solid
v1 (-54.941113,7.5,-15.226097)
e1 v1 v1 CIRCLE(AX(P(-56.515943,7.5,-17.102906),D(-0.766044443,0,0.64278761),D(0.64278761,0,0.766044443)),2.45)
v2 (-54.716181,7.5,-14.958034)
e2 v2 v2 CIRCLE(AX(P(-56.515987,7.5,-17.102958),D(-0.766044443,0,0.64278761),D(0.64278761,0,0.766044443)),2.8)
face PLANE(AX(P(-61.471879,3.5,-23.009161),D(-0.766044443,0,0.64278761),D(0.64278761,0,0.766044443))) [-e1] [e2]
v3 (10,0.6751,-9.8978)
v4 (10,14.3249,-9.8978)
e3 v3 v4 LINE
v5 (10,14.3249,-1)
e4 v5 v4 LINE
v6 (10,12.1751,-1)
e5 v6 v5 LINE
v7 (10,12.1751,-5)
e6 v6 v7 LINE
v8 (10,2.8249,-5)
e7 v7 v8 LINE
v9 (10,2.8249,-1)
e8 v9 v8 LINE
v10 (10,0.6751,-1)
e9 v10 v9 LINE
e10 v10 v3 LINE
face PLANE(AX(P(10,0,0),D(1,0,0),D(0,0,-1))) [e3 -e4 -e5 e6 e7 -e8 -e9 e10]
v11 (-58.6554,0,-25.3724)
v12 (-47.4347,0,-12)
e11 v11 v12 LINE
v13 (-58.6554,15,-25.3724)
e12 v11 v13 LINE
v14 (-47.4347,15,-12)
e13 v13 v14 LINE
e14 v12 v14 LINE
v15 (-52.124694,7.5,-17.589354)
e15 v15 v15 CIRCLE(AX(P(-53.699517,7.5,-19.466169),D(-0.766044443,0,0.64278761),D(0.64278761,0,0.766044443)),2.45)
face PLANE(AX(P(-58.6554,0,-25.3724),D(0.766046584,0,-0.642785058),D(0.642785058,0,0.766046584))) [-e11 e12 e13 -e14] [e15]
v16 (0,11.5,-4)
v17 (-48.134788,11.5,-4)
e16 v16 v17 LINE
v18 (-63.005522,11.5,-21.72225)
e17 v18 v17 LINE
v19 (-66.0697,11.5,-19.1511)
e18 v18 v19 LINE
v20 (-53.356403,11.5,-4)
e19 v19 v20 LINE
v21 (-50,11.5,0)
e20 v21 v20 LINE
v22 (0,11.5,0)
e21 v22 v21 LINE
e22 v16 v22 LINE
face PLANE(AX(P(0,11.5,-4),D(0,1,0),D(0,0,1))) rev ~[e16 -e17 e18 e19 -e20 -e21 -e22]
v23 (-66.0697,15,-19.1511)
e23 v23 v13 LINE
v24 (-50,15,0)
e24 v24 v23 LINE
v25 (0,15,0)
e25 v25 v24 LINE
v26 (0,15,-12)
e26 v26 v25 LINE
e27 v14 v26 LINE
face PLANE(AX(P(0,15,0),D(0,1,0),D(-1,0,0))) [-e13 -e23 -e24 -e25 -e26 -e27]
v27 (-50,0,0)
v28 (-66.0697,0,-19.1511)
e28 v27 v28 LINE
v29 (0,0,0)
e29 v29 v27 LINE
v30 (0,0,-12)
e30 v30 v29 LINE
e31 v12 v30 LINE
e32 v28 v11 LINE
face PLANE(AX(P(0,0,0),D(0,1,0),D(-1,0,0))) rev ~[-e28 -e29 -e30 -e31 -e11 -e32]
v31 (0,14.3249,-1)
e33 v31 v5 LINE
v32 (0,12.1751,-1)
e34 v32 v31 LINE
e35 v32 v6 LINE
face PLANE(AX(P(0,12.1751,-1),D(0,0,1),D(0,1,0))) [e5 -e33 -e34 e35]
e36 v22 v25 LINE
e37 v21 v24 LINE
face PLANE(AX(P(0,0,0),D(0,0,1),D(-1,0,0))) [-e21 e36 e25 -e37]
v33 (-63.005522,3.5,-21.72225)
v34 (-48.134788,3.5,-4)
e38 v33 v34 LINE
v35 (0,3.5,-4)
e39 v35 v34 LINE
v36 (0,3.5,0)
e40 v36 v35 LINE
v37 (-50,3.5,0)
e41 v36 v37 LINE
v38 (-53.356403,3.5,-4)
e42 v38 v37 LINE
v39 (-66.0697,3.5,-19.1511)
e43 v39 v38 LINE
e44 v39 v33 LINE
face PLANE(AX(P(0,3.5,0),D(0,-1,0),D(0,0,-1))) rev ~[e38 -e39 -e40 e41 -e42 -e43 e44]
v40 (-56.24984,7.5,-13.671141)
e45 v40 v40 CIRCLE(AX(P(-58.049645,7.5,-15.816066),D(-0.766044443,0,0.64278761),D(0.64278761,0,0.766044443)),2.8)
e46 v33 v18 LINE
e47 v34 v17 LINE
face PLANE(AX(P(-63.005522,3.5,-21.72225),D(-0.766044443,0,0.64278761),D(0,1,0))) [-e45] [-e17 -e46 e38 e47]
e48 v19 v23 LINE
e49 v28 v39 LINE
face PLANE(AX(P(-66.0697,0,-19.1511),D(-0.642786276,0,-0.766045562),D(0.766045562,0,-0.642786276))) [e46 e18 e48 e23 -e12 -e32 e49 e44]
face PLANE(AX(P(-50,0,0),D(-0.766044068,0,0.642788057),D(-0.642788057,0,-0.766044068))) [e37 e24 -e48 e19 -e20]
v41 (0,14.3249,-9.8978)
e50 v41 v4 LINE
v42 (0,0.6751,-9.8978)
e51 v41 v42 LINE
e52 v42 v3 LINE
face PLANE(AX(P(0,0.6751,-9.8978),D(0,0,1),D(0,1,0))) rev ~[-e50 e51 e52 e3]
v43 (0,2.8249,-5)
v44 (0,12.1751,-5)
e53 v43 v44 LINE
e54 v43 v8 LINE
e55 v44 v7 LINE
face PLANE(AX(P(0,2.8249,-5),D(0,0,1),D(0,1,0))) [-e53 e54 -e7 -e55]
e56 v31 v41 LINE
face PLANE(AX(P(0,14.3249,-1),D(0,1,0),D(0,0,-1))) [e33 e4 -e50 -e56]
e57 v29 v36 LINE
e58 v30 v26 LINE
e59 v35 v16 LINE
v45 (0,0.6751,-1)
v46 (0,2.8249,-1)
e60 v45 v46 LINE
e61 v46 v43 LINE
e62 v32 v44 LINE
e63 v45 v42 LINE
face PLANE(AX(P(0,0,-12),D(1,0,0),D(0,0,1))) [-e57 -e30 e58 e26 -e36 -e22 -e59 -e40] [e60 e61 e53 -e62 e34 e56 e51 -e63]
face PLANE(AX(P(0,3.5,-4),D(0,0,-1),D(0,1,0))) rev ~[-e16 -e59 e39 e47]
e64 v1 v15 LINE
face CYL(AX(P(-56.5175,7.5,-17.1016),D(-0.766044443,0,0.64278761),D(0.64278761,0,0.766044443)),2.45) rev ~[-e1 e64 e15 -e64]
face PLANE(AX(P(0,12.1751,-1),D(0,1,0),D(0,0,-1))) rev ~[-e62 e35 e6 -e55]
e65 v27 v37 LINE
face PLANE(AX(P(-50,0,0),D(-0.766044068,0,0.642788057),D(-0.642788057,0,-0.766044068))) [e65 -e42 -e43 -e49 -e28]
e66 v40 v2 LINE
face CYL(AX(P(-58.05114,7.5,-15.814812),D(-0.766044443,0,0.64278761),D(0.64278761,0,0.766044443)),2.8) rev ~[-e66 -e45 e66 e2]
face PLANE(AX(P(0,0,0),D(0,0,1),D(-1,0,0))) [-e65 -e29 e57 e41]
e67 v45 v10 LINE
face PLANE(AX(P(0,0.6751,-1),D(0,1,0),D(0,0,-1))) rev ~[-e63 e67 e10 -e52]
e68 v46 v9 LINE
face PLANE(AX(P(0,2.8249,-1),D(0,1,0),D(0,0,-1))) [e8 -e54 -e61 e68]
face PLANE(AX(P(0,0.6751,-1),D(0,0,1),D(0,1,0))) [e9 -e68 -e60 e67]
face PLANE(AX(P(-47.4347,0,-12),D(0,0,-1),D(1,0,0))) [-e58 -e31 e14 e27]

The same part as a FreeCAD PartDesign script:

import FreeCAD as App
import Part
import Sketcher

V = App.Vector
Q = App.Units.Quantity

doc = App.newDocument("Part")
body = doc.addObject("PartDesign::Body", "Body")

sketch1 = body.newObject("Sketcher::SketchObject", "Sketch")
sketch1.AttachmentSupport = (doc.getObject("XZ_Plane"), [""])
sketch1.MapMode = "FlatFace"
sketch1.addGeometry([
    Part.LineSegment(V(-50, 0, 0), V(0, 0, 0)),
    Part.LineSegment(V(0, 0, 0), V(0, -12, 0)),
    Part.LineSegment(V(0, -12, 0), V(-47, -12, 0)),
    Part.LineSegment(V(-47, -12, 0), V(-59, -25, 0)),
    Part.LineSegment(V(-59, -25, 0), V(-66, -19, 0)),
    Part.LineSegment(V(-66, -19, 0), V(-50, 0, 0)),
], False)
sketch1.addConstraint([
    Sketcher.Constraint("Coincident", 0, 2, 1, 1),
    Sketcher.Constraint("Coincident", 1, 2, 2, 1),
    Sketcher.Constraint("Coincident", 2, 2, 3, 1),
    Sketcher.Constraint("Coincident", 3, 2, 4, 1),
    Sketcher.Constraint("Coincident", 4, 2, 5, 1),
    Sketcher.Constraint("Coincident", 5, 2, 0, 1),
    Sketcher.Constraint("Horizontal", 0),
    Sketcher.Constraint("Vertical", 1),
    Sketcher.Constraint("Horizontal", 2),
    Sketcher.Constraint("Coincident", 0, 2, -1, 1),
    Sketcher.Constraint("Perpendicular", 3, 4),
    Sketcher.Constraint("Perpendicular", 4, 5),
    Sketcher.Constraint("DistanceX", 0, 1, 0, 2, Q("50 mm")),
    Sketcher.Constraint("DistanceY", 1, 2, 1, 1, Q("12 mm")),
    Sketcher.Constraint("Angle", 5, Q("50 deg")),
    Sketcher.Constraint("Distance", 5, Q("25 mm")),
    Sketcher.Constraint("DistanceX", 2, 2, 2, 1, Q("47.4347 mm")),
])
pad1 = body.newObject("PartDesign::Pad", "Pad")
pad1.Profile = sketch1
pad1.Length = 15
pad1.Reversed = True

sketch2 = body.newObject("Sketcher::SketchObject", "Sketch001")
sketch2.AttachmentSupport = (doc.getObject("YZ_Plane"), [""])
sketch2.MapMode = "FlatFace"
sketch2.addGeometry([
    Part.LineSegment(V(3.5, 0, 0), V(3.5, -4, 0)),
    Part.LineSegment(V(3.5, -4, 0), V(11.5, -4, 0)),
    Part.LineSegment(V(11.5, -4, 0), V(11.5, 0, 0)),
    Part.LineSegment(V(11.5, 0, 0), V(3.5, 0, 0)),
], False)
sketch2.addConstraint([
    Sketcher.Constraint("Coincident", 0, 2, 1, 1),
    Sketcher.Constraint("Coincident", 1, 2, 2, 1),
    Sketcher.Constraint("Coincident", 2, 2, 3, 1),
    Sketcher.Constraint("Coincident", 3, 2, 0, 1),
    Sketcher.Constraint("Vertical", 0),
    Sketcher.Constraint("Horizontal", 1),
    Sketcher.Constraint("Vertical", 2),
    Sketcher.Constraint("Horizontal", 3),
    Sketcher.Constraint("PointOnObject", 2, 2, -1),
    Sketcher.Constraint("DistanceX", 1, 1, 1, 2, Q("8 mm")),
    Sketcher.Constraint("DistanceY", 0, 2, 0, 1, Q("4 mm")),
    Sketcher.Constraint("DistanceX", -1, 1, 0, 2, Q("3.5 mm")),
])
pocket1 = body.newObject("PartDesign::Pocket", "Pocket")
pocket1.Profile = sketch2
pocket1.Type = "ThroughAll"

sketch3 = body.newObject("Sketcher::SketchObject", "Sketch002")
sketch3.Placement = App.Placement(V(-66.0697, 0, -19.1511), App.Rotation(V(-0.766044443, 0, 0.64278761), V(0, 1, 0), V(-0.64278761, 0, -0.766044443), "ZXY"))
sketch3.addGeometry([
    Part.LineSegment(V(-4, 3.5, 0), V(0, 3.5, 0)),
    Part.LineSegment(V(0, 3.5, 0), V(0, 11.5, 0)),
    Part.LineSegment(V(0, 11.5, 0), V(-4, 11.5, 0)),
    Part.LineSegment(V(-4, 11.5, 0), V(-4, 3.5, 0)),
], False)
sketch3.addConstraint([
    Sketcher.Constraint("Coincident", 0, 2, 1, 1),
    Sketcher.Constraint("Coincident", 1, 2, 2, 1),
    Sketcher.Constraint("Coincident", 2, 2, 3, 1),
    Sketcher.Constraint("Coincident", 3, 2, 0, 1),
    Sketcher.Constraint("Horizontal", 0),
    Sketcher.Constraint("Vertical", 1),
    Sketcher.Constraint("Horizontal", 2),
    Sketcher.Constraint("Vertical", 3),
    Sketcher.Constraint("PointOnObject", 0, 2, -2),
    Sketcher.Constraint("DistanceX", 0, 1, 0, 2, Q("4 mm")),
    Sketcher.Constraint("DistanceY", 1, 1, 1, 2, Q("8 mm")),
    Sketcher.Constraint("DistanceY", -1, 1, 0, 2, Q("3.5 mm")),
])
pocket2 = body.newObject("PartDesign::Pocket", "Pocket001")
pocket2.Profile = sketch3
pocket2.Type = "ThroughAll"

sketch4 = body.newObject("Sketcher::SketchObject", "Sketch003")
sketch4.Placement = App.Placement(V(-63.0055, 3.5, -21.7223), App.Rotation(V(0.64278761, 0, 0.766044443), V(0, 1, 0), V(-0.766044443, 0, 0.64278761), "ZXY"))
sketch4.addGeometry(Part.Circle(V(7.7, 4, 0), V(0, 0, 1), 2.8), False)
sketch4.addConstraint([
    Sketcher.Constraint("Diameter", 0, Q("5.6 mm")),
    Sketcher.Constraint("DistanceY", -1, 1, 0, 3, Q("4 mm")),
    Sketcher.Constraint("DistanceX", -1, 1, 0, 3, Q("7.71 mm")),
])
pocket3 = body.newObject("PartDesign::Pocket", "Pocket002")
pocket3.Profile = sketch4
pocket3.Length = 2

sketch5 = body.newObject("Sketcher::SketchObject", "Sketch004")
sketch5.Placement = App.Placement(V(-56.5175, 7.5, -17.1016), App.Rotation(V(0.64278761, 0, 0.766044443), V(0, 1, 0), V(-0.766044443, 0, 0.64278761), "ZXY"))
sketch5.addGeometry(Part.Circle(V(0, 0, 0), V(0, 0, 1), 2.5), False)
sketch5.addConstraint([
    Sketcher.Constraint("Coincident", 0, 3, -1, 1),
    Sketcher.Constraint("Diameter", 0, Q("4.9 mm")),
])
pocket4 = body.newObject("PartDesign::Pocket", "Pocket003")
pocket4.Profile = sketch5
pocket4.Type = "ThroughAll"

sketch6 = body.newObject("Sketcher::SketchObject", "Sketch005")
sketch6.AttachmentSupport = (doc.getObject("YZ_Plane"), [""])
sketch6.MapMode = "FlatFace"
sketch6.addGeometry([
    Part.LineSegment(V(2.8, -1, 0), V(0.7, -1, 0)),
    Part.LineSegment(V(0.7, -1, 0), V(0.7, -9.9, 0)),
    Part.LineSegment(V(0.7, -9.9, 0), V(14.3, -9.9, 0)),
    Part.LineSegment(V(14.3, -9.9, 0), V(14.3, -1, 0)),
    Part.LineSegment(V(14.3, -1, 0), V(12.2, -1, 0)),
    Part.LineSegment(V(12.2, -1, 0), V(12.2, -5, 0)),
    Part.LineSegment(V(12.2, -5, 0), V(2.8, -5, 0)),
    Part.LineSegment(V(2.8, -5, 0), V(2.8, -1, 0)),
], False)
sketch6.addConstraint([
    Sketcher.Constraint("Coincident", 0, 2, 1, 1),
    Sketcher.Constraint("Coincident", 1, 2, 2, 1),
    Sketcher.Constraint("Coincident", 2, 2, 3, 1),
    Sketcher.Constraint("Coincident", 3, 2, 4, 1),
    Sketcher.Constraint("Coincident", 4, 2, 5, 1),
    Sketcher.Constraint("Coincident", 5, 2, 6, 1),
    Sketcher.Constraint("Coincident", 6, 2, 7, 1),
    Sketcher.Constraint("Coincident", 7, 2, 0, 1),
    Sketcher.Constraint("Horizontal", 0),
    Sketcher.Constraint("Vertical", 1),
    Sketcher.Constraint("Horizontal", 2),
    Sketcher.Constraint("Vertical", 3),
    Sketcher.Constraint("Horizontal", 4),
    Sketcher.Constraint("Vertical", 5),
    Sketcher.Constraint("Horizontal", 6),
    Sketcher.Constraint("Vertical", 7),
    Sketcher.Constraint("Horizontal", 0, 2, 3, 2),
    Sketcher.Constraint("Equal", 0, 4),
    Sketcher.Constraint("DistanceY", 5, 2, 5, 1, Q("4 mm")),
    Sketcher.Constraint("DistanceY", 0, 2, -1, 1, Q("1 mm")),
    Sketcher.Constraint("DistanceX", 0, 2, 4, 2, Q("11.5 mm")),
    Sketcher.Constraint("DistanceX", 0, 2, 0, 1, Q("2.1498 mm")),
    Sketcher.Constraint("DistanceY", 1, 2, 1, 1, Q("8.8978 mm")),
    Sketcher.Constraint("DistanceX", -1, 1, 0, 2, Q("0.675 mm")),
])
pad2 = body.newObject("PartDesign::Pad", "Pad001")
pad2.Profile = sketch6
pad2.Length = 10

doc.recompute()
